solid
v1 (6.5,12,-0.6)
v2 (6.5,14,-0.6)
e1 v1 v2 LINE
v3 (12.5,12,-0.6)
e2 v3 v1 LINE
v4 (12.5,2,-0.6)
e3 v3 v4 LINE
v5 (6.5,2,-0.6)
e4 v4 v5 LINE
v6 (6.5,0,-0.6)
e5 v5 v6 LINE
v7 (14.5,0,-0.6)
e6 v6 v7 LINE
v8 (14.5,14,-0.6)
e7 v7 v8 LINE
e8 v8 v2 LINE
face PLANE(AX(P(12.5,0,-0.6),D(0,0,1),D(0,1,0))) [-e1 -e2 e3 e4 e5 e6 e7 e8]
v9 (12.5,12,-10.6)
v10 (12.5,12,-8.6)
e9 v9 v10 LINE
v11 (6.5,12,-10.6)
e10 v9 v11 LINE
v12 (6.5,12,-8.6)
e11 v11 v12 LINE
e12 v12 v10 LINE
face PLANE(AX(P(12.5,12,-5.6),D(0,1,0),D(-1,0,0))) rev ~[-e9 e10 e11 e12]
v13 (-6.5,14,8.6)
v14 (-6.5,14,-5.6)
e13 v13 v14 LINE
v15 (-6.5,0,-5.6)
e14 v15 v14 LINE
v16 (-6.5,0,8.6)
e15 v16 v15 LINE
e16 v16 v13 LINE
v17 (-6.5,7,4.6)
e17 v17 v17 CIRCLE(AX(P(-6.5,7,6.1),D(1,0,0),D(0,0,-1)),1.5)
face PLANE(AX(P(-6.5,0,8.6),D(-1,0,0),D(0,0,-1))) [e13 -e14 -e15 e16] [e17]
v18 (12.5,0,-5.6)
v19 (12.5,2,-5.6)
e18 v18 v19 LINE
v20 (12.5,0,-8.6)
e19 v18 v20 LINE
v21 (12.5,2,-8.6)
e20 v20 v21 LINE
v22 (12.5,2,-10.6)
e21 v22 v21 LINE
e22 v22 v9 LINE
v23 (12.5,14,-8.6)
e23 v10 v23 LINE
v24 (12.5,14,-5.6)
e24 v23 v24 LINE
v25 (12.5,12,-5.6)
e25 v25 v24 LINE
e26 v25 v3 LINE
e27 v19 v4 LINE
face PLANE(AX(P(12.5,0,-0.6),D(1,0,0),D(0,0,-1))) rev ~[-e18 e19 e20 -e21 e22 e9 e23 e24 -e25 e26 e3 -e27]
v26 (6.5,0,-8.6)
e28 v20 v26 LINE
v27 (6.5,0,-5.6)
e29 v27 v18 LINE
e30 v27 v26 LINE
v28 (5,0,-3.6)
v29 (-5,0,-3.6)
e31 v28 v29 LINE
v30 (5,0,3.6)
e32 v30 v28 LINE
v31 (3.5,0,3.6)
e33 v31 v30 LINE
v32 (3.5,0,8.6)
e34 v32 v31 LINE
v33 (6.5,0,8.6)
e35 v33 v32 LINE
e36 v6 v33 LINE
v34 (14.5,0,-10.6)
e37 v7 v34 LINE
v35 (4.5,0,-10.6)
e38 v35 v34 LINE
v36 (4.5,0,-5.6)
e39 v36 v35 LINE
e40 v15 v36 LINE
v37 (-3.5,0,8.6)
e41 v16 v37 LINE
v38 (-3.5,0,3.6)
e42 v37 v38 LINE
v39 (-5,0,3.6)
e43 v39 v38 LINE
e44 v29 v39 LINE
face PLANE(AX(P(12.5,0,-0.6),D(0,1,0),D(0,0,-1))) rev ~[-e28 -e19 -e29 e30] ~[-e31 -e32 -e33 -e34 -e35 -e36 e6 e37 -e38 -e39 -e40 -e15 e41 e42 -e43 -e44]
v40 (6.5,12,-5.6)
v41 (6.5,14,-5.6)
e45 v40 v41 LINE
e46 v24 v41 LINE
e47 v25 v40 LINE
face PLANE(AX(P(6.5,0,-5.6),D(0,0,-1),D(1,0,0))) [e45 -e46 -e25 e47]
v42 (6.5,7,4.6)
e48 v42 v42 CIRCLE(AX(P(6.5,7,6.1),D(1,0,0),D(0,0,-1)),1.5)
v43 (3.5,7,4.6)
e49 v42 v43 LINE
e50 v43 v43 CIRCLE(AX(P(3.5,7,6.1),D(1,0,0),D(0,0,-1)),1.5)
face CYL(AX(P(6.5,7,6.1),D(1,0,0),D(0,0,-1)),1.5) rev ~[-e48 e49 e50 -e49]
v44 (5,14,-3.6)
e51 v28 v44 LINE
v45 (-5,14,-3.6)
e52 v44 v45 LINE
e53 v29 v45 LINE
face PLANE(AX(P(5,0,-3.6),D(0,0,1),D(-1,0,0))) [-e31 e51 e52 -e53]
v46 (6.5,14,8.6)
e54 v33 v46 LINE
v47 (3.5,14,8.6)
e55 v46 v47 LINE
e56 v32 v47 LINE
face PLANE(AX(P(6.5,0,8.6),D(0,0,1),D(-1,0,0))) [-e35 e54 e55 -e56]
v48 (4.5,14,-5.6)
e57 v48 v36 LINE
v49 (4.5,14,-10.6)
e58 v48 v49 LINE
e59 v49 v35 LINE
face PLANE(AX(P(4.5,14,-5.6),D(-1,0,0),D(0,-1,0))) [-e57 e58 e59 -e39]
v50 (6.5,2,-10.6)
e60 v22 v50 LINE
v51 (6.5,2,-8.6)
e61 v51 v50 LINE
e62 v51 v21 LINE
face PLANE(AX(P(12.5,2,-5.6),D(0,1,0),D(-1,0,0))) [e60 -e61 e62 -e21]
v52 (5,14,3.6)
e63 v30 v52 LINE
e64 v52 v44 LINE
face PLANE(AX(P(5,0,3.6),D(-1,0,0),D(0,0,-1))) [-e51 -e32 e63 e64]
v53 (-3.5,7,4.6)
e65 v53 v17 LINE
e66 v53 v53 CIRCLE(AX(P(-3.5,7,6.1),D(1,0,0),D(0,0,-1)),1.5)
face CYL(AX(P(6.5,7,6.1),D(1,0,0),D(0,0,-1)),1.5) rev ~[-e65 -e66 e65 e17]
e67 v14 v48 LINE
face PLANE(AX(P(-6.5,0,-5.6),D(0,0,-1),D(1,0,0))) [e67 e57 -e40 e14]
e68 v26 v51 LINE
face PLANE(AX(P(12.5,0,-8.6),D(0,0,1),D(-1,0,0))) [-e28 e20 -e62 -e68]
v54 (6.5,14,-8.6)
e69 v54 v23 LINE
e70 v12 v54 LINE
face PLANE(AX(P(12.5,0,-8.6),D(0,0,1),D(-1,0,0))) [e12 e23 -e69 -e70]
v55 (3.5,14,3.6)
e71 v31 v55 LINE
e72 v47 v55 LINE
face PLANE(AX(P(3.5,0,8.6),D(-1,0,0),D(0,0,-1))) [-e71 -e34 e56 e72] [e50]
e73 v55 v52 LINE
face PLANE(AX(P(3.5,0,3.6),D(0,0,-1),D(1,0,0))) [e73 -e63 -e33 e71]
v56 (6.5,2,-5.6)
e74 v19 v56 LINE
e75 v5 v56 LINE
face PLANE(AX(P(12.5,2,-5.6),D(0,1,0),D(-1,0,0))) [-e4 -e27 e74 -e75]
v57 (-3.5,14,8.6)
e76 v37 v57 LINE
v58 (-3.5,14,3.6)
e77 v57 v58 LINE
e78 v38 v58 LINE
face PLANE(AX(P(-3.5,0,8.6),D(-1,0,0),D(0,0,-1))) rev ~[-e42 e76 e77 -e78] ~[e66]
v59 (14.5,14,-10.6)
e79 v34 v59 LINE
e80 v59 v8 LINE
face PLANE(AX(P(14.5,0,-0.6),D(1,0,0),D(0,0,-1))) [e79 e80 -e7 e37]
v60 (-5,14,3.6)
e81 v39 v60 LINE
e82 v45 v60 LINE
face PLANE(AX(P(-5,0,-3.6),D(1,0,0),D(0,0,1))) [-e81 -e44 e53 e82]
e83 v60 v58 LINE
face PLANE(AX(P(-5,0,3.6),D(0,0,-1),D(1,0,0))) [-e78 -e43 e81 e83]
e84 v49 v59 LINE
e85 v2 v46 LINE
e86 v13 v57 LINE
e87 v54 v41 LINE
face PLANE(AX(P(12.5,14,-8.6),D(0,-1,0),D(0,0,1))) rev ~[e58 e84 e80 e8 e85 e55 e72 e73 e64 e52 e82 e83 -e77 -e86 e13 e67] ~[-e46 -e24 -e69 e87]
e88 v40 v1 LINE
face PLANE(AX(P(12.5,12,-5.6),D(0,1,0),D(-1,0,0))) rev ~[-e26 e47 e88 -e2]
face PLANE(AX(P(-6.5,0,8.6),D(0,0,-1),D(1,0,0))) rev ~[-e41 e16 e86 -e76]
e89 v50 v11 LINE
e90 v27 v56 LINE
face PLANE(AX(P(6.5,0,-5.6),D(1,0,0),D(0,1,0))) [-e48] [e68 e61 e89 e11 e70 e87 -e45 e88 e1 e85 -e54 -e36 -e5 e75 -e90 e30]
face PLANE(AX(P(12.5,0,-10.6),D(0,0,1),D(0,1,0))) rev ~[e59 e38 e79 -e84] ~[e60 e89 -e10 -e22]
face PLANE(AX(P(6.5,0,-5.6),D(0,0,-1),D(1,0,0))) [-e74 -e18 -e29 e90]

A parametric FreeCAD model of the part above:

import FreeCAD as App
import Part
import Sketcher


def add_polygon(sketch, points):
    """Adds a closed chain of lines whose ends are joined by coincident constraints."""
    first, n = sketch.GeometryCount, len(points)
    for a, b in zip(points, points[1:] + points[:1]):
        sketch.addGeometry(Part.LineSegment(App.Vector(*a, 0), App.Vector(*b, 0)), False)
    for i in range(n):
        sketch.addConstraint(Sketcher.Constraint("Coincident", first + i, 2, first + (i + 1) % n, 1))

doc = App.newDocument("Part")
body = doc.addObject("PartDesign::Body", "Body")

sketch1 = body.newObject("Sketcher::SketchObject", "Sketch")
sketch1.AttachmentSupport = (doc.getObject("XZ_Plane"), [""])
sketch1.MapMode = "FlatFace"
add_polygon(sketch1, [(-3.5, 3.6), (-5, 3.6), (-5, -3.6), (5, -3.6), (5, 3.6), (3.5, 3.6), (3.5, 8.6), (6.5, 8.6), (6.5, -5.6), (-6.5, -5.6), (-6.5, 8.6), (-3.5, 8.6)])
sketch1.addConstraint(Sketcher.Constraint("Horizontal", 0))
sketch1.addConstraint(Sketcher.Constraint("Vertical", 1))
sketch1.addConstraint(Sketcher.Constraint("Horizontal", 2))
sketch1.addConstraint(Sketcher.Constraint("Vertical", 3))
sketch1.addConstraint(Sketcher.Constraint("Horizontal", 4))
sketch1.addConstraint(Sketcher.Constraint("Vertical", 5))
sketch1.addConstraint(Sketcher.Constraint("Horizontal", 6))
sketch1.addConstraint(Sketcher.Constraint("Vertical", 7))
sketch1.addConstraint(Sketcher.Constraint("Horizontal", 8))
sketch1.addConstraint(Sketcher.Constraint("Vertical", 9))
sketch1.addConstraint(Sketcher.Constraint("Horizontal", 10))
sketch1.addConstraint(Sketcher.Constraint("Vertical", 11))
sketch1.addConstraint(Sketcher.Constraint("Symmetric", 0, 2, 2, 2, -1, 1))
sketch1.addConstraint(Sketcher.Constraint("Symmetric", 6, 2, 9, 2, -2))
sketch1.addConstraint(Sketcher.Constraint("Symmetric", 4, 2, 11, 2, -2))
sketch1.addConstraint(Sketcher.Constraint("DistanceX", 2, 1, 2, 2, 10.0))
sketch1.addConstraint(Sketcher.Constraint("DistanceY", 5, 1, 5, 2, 5.0))
sketch1.addConstraint(Sketcher.Constraint("DistanceX", 0, 2, 0, 1, 1.5))
sketch1.addConstraint(Sketcher.Constraint("DistanceY", 1, 2, 1, 1, 7.2))
sketch1.addConstraint(Sketcher.Constraint("DistanceY", 7, 2, 2, 2, 2.0))
sketch1.addConstraint(Sketcher.Constraint("DistanceX", 8, 2, 4, 2, 10.0))
pad1 = body.newObject("PartDesign::Pad", "Pad")
pad1.Profile = sketch1
pad1.Length = 14
pad1.Reversed = True

sketch2 = body.newObject("Sketcher::SketchObject", "Sketch001")
sketch2.AttachmentSupport = (doc.getObject("YZ_Plane"), [""])
sketch2.MapMode = "FlatFace"
sketch2.AttachmentOffset = App.Placement(App.Vector(0, 0, 6.5), App.Rotation())
sketch2.addGeometry(Part.Circle(App.Vector(7, 6.1, 0), App.Vector(0, 0, 1), 1.5), False)
sketch2.addConstraint(Sketcher.Constraint("Diameter", 0, 3.0))
sketch2.addConstraint(Sketcher.Constraint("DistanceX", -1, 1, 0, 3, 7.0))
sketch2.addConstraint(Sketcher.Constraint("DistanceY", -1, 1, 0, 3, 6.1))
pocket1 = body.newObject("PartDesign::Pocket", "Pocket")
pocket1.Profile = sketch2
pocket1.Length = 14.75

sketch3 = body.newObject("Sketcher::SketchObject", "Sketch002")
sketch3.AttachmentSupport = (doc.getObject("XY_Plane"), [""])
sketch3.MapMode = "FlatFace"
sketch3.AttachmentOffset = App.Placement(App.Vector(0, 0, -5.6), App.Rotation())
add_polygon(sketch3, [(12.5, 12), (6.5, 12), (6.5, 14), (12.5, 14)])
add_polygon(sketch3, [(12.5, 0), (6.5, 0), (6.5, 2), (12.5, 2)])
sketch3.addConstraint(Sketcher.Constraint("Horizontal", 0))
sketch3.addConstraint(Sketcher.Constraint("Vertical", 1))
sketch3.addConstraint(Sketcher.Constraint("Horizontal", 2))
sketch3.addConstraint(Sketcher.Constraint("Vertical", 3))
sketch3.addConstraint(Sketcher.Constraint("Horizontal", 4))
sketch3.addConstraint(Sketcher.Constraint("Vertical", 5))
sketch3.addConstraint(Sketcher.Constraint("Horizontal", 6))
sketch3.addConstraint(Sketcher.Constraint("Vertical", 7))
sketch3.addConstraint(Sketcher.Constraint("PointOnObject", 4, 2, -1))
sketch3.addConstraint(Sketcher.Constraint("Vertical", 1, 2, 4, 2))
sketch3.addConstraint(Sketcher.Constraint("Vertical", 3, 2, 6, 2))
sketch3.addConstraint(Sketcher.Constraint("Equal", 3, 5))
sketch3.addConstraint(Sketcher.Constraint("DistanceX", 0, 2, 0, 1, 6.0))
sketch3.addConstraint(Sketcher.Constraint("DistanceY", 1, 1, 1, 2, 2.0))
sketch3.addConstraint(Sketcher.Constraint("DistanceY", -1, 1, 0, 2, 12.0))
sketch3.addConstraint(Sketcher.Constraint("DistanceX", -1, 1, 0, 2, 6.5))
pad2 = body.newObject("PartDesign::Pad", "Pad001")
pad2.Profile = sketch3
pad2.Length = 10
pad2.Midplane = True

sketch4 = body.newObject("Sketcher::SketchObject", "Sketch003")
sketch4.AttachmentSupport = (doc.getObject("XY_Plane"), [""])
sketch4.MapMode = "FlatFace"
sketch4.AttachmentOffset = App.Placement(App.Vector(0, 0, -5.6), App.Rotation())
add_polygon(sketch4, [(6.5, 14), (6.5, 0), (4.5, 0), (4.5, 14)])
sketch4.addConstraint(Sketcher.Constraint("Vertical", 0))
sketch4.addConstraint(Sketcher.Constraint("Horizontal", 1))
sketch4.addConstraint(Sketcher.Constraint("Vertical", 2))
sketch4.addConstraint(Sketcher.Constraint("Horizontal", 3))
sketch4.addConstraint(Sketcher.Constraint("PointOnObject", 0, 2, -1))
sketch4.addConstraint(Sketcher.Constraint("DistanceX", 1, 2, 1, 1, 2.0))
sketch4.addConstraint(Sketcher.Constraint("DistanceY", 0, 2, 0, 1, 14.0))
sketch4.addConstraint(Sketcher.Constraint("DistanceX", -1, 1, 0, 2, 6.5))
pad3 = body.newObject("PartDesign::Pad", "Pad002")
pad3.Profile = sketch4
pad3.Length = 5
pad3.Reversed = True

sketch5 = body.newObject("Sketcher::SketchObject", "Sketch004")
sketch5.AttachmentSupport = (doc.getObject("XZ_Plane"), [""])
sketch5.MapMode = "FlatFace"
add_polygon(sketch5, [(12.5, -8.6), (12.5, -5.6), (6.5, -5.6), (6.5, -8.6)])
sketch5.addConstraint(Sketcher.Constraint("Vertical", 0))
sketch5.addConstraint(Sketcher.Constraint("Horizontal", 1))
sketch5.addConstraint(Sketcher.Constraint("Vertical", 2))
sketch5.addConstraint(Sketcher.Constraint("Horizontal", 3))
sketch5.addConstraint(Sketcher.Constraint("DistanceY", 0, 1, 0, 2, 3.0))
sketch5.addConstraint(Sketcher.Constraint("DistanceX", 1, 2, 1, 1, 6.0))
sketch5.addConstraint(Sketcher.Constraint("DistanceX", -1, 1, 0, 2, 12.5))
sketch5.addConstraint(Sketcher.Constraint("DistanceY", 0, 2, -1, 1, 5.6))
pocket2 = body.newObject("PartDesign::Pocket", "Pocket001")
pocket2.Profile = sketch5
pocket2.Length = 23.5

sketch6 = body.newObject("Sketcher::SketchObject", "Sketch005")
sketch6.AttachmentSupport = (doc.getObject("YZ_Plane"), [""])
sketch6.MapMode = "FlatFace"
sketch6.AttachmentOffset = App.Placement(App.Vector(0, 0, 12.5), App.Rotation())
add_polygon(sketch6, [(14, -0.6), (0, -0.6), (0, -10.6), (14, -10.6)])
sketch6.addConstraint(Sketcher.Constraint("Horizontal", 0))
sketch6.addConstraint(Sketcher.Constraint("Vertical", 1))
sketch6.addConstraint(Sketcher.Constraint("Horizontal", 2))
sketch6.addConstraint(Sketcher.Constraint("Vertical", 3))
sketch6.addConstraint(Sketcher.Constraint("PointOnObject", 0, 2, -2))
sketch6.addConstraint(Sketcher.Constraint("DistanceX", 0, 2, 0, 1, 14.0))
sketch6.addConstraint(Sketcher.Constraint("DistanceY", 1, 2, 1, 1, 10.0))
sketch6.addConstraint(Sketcher.Constraint("DistanceY", 0, 2, -1, 1, 0.6))
pad4 = body.newObject("PartDesign::Pad", "Pad003")
pad4.Profile = sketch6
pad4.Length = 2

doc.recompute()
